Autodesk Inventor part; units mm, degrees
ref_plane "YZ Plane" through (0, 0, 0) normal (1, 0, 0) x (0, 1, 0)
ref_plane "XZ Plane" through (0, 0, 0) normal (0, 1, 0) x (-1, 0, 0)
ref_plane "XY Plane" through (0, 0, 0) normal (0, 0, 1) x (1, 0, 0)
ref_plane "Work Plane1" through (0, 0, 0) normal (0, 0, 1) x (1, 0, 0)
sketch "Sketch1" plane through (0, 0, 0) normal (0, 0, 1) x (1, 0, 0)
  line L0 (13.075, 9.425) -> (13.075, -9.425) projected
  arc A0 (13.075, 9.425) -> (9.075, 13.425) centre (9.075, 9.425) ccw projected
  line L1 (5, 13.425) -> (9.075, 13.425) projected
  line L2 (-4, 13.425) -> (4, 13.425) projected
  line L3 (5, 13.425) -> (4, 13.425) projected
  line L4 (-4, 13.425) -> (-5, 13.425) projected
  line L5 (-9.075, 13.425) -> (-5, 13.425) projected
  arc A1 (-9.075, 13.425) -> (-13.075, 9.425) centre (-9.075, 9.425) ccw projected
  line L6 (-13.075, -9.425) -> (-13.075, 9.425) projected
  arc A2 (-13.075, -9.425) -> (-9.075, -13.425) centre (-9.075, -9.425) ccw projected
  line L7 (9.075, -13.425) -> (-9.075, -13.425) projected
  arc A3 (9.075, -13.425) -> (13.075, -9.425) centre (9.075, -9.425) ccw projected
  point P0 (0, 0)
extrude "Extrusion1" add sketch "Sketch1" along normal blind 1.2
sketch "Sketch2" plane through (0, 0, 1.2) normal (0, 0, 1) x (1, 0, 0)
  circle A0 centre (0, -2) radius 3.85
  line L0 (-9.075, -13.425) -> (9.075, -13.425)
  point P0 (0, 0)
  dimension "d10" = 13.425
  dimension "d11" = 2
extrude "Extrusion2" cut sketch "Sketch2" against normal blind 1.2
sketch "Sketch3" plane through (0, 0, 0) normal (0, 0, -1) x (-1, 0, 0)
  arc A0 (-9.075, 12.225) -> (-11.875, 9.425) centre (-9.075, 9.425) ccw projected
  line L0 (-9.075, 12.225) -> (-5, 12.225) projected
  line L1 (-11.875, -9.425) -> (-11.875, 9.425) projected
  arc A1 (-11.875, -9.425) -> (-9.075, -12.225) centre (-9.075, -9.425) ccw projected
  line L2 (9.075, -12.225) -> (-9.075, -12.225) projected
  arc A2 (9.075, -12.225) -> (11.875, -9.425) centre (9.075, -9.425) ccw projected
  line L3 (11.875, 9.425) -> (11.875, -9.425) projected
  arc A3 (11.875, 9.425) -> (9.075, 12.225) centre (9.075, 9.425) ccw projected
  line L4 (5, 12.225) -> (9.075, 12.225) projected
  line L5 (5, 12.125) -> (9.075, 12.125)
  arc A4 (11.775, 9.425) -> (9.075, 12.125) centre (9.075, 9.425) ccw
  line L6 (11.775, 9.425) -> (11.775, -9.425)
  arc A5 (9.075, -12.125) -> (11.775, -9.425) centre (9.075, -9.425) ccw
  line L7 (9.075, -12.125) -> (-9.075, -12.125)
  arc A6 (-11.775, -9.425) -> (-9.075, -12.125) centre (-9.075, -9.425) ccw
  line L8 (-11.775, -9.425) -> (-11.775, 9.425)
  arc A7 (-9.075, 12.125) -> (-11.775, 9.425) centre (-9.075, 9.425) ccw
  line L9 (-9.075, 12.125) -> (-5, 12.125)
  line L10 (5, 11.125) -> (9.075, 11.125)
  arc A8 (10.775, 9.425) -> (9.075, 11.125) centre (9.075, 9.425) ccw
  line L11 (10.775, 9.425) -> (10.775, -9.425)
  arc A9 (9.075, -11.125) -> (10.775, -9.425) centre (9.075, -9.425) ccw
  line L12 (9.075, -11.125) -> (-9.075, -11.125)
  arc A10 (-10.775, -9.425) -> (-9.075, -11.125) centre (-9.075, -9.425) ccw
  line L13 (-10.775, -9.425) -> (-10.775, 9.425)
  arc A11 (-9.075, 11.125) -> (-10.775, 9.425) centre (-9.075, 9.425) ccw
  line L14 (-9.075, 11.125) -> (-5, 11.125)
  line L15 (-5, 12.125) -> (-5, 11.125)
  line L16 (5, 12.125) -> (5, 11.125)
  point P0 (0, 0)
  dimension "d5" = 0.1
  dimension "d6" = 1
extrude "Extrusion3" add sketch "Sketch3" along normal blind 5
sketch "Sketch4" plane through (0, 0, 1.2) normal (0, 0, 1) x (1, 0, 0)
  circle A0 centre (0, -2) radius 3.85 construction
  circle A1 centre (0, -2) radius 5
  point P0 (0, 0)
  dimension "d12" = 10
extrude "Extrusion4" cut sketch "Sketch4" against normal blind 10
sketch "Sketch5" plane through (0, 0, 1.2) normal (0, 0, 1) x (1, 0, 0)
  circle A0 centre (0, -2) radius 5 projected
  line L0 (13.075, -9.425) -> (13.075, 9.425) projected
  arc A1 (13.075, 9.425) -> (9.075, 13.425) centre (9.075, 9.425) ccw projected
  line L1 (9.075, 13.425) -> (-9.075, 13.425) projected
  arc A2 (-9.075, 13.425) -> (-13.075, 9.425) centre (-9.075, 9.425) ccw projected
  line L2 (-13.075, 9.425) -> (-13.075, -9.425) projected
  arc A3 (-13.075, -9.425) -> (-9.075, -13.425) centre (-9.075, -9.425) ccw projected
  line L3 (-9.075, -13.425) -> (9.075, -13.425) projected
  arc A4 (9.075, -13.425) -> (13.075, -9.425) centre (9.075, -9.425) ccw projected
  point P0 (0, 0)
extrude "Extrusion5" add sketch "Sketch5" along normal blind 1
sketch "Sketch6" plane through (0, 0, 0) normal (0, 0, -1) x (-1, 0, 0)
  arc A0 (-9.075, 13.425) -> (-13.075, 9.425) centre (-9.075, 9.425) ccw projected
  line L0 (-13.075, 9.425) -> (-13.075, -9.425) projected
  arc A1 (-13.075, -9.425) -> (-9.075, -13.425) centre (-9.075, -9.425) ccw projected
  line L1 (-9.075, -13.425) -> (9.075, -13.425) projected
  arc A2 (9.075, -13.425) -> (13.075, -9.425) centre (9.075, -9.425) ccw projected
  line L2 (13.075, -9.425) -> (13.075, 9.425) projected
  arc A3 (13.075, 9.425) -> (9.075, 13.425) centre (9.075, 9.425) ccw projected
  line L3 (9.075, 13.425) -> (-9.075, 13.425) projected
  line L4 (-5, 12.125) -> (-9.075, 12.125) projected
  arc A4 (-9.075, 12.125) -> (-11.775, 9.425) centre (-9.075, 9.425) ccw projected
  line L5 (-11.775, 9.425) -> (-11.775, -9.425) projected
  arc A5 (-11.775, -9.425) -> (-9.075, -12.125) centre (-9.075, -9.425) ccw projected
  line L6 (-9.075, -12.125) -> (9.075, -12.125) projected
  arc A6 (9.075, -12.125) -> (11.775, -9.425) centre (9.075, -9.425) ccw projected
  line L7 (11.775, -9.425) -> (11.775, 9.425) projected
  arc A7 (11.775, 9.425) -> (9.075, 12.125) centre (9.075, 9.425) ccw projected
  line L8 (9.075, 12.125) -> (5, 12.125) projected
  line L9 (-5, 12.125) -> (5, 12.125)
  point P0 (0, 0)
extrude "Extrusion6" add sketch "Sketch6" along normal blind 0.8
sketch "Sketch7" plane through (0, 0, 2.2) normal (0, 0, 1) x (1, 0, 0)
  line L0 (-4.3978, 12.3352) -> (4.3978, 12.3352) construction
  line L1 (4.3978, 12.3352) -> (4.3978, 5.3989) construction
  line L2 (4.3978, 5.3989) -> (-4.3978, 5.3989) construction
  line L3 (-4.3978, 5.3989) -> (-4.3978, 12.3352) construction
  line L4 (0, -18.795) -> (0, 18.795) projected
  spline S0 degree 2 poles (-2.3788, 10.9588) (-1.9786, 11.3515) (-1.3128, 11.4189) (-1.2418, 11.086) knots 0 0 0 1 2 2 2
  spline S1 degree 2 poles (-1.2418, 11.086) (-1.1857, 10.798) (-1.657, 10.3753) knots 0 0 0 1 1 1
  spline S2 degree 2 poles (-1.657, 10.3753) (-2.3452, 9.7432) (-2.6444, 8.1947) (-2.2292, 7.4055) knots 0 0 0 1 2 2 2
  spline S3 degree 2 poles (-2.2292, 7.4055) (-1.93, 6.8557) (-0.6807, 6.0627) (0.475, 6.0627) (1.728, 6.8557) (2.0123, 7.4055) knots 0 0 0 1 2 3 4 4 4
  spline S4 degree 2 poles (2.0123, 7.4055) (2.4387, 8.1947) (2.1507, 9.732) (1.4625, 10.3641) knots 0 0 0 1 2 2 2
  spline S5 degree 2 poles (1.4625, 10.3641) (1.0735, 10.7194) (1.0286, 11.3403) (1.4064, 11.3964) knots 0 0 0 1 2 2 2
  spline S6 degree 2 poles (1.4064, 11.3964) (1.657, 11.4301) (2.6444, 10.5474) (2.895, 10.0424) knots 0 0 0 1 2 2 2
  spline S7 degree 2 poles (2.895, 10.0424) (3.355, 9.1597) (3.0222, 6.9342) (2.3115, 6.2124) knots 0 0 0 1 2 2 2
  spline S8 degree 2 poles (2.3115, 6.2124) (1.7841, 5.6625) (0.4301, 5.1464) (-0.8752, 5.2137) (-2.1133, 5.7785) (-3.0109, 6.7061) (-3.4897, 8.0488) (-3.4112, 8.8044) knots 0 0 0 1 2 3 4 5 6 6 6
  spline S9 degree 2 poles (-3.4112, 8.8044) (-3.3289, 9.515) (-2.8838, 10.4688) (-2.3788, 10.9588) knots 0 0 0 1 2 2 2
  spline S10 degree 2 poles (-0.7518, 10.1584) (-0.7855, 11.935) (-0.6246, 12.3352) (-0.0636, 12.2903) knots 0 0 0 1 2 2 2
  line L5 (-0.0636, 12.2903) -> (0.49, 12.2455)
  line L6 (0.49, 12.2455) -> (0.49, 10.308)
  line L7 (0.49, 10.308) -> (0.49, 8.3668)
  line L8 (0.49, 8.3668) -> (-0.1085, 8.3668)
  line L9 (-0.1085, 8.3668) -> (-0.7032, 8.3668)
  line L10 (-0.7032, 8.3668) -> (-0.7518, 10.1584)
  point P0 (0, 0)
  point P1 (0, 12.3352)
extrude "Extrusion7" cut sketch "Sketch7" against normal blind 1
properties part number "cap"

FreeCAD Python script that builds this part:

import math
import FreeCAD as App
import Part
import Sketcher
from FreeCAD import Vector

doc = App.newDocument("Part")
body = doc.addObject("PartDesign::Body", "Body")

sketch1 = doc.addObject("Sketcher::SketchObject", "Sketch")
body.addObject(sketch1)
sketch1.AttachmentSupport = (doc.XY_Plane, [""])
sketch1.MapMode = "FlatFace"
sketch1.addGeometry(Part.LineSegment(Vector(13.1, -9.4, 0), Vector(13.1, 9.4, 0)), False)
sketch1.addGeometry(Part.ArcOfCircle(Part.Circle(Vector(9.1, 9.4, 0), Vector(0, 0, 1), 4), math.radians(0), math.radians(90)), False)
sketch1.addGeometry(Part.LineSegment(Vector(9.1, 13.4, 0), Vector(-9.1, 13.4, 0)), False)
sketch1.addGeometry(Part.ArcOfCircle(Part.Circle(Vector(-9.1, 9.4, 0), Vector(0, 0, 1), 4), math.radians(90), math.radians(180)), False)
sketch1.addGeometry(Part.LineSegment(Vector(-13.1, 9.4, 0), Vector(-13.1, -9.4, 0)), False)
sketch1.addGeometry(Part.ArcOfCircle(Part.Circle(Vector(-9.1, -9.4, 0), Vector(0, 0, 1), 4), math.radians(180), math.radians(270)), False)
sketch1.addGeometry(Part.LineSegment(Vector(-9.1, -13.4, 0), Vector(9.1, -13.4, 0)), False)
sketch1.addGeometry(Part.ArcOfCircle(Part.Circle(Vector(9.1, -9.4, 0), Vector(0, 0, 1), 4), math.radians(-90), math.radians(0)), False)
sketch1.addConstraint(Sketcher.Constraint("Tangent", 0, 2, 1, 1))
sketch1.addConstraint(Sketcher.Constraint("Tangent", 1, 2, 2, 1))
sketch1.addConstraint(Sketcher.Constraint("Tangent", 2, 2, 3, 1))
sketch1.addConstraint(Sketcher.Constraint("Tangent", 3, 2, 4, 1))
sketch1.addConstraint(Sketcher.Constraint("Tangent", 4, 2, 5, 1))
sketch1.addConstraint(Sketcher.Constraint("Tangent", 5, 2, 6, 1))
sketch1.addConstraint(Sketcher.Constraint("Tangent", 6, 2, 7, 1))
sketch1.addConstraint(Sketcher.Constraint("Tangent", 7, 2, 0, 1))
sketch1.addConstraint(Sketcher.Constraint("Vertical", 0))
sketch1.addConstraint(Sketcher.Constraint("Horizontal", 2))
sketch1.addConstraint(Sketcher.Constraint("Vertical", 4))
sketch1.addConstraint(Sketcher.Constraint("Horizontal", 6))
sketch1.addConstraint(Sketcher.Constraint("Equal", 1, 3))
sketch1.addConstraint(Sketcher.Constraint("Equal", 3, 5))
sketch1.addConstraint(Sketcher.Constraint("Equal", 5, 7))
sketch1.addConstraint(Sketcher.Constraint("Symmetric", 1, 3, 5, 3, -1, 1))
sketch1.addConstraint(Sketcher.Constraint("Radius", 1, 4.0))
sketch1.addConstraint(Sketcher.Constraint("DistanceX", 2, 2, 2, 1, 18.15))
sketch1.addConstraint(Sketcher.Constraint("DistanceY", 0, 1, 0, 2, 18.85))
pad1 = doc.addObject("PartDesign::Pad", "Pad")
body.addObject(pad1)
pad1.Profile = sketch1
pad1.Length = 1.2

sketch2 = doc.addObject("Sketcher::SketchObject", "Sketch001")
body.addObject(sketch2)
sketch2.AttachmentSupport = (doc.XY_Plane, [""])
sketch2.MapMode = "FlatFace"
sketch2.AttachmentOffset = App.Placement(Vector(0, 0, 1.2), App.Rotation())
sketch2.addGeometry(Part.Circle(Vector(0, -2, 0), Vector(0, 0, 1), 3.9), False)
sketch2.addConstraint(Sketcher.Constraint("PointOnObject", 0, 3, -2))
sketch2.addConstraint(Sketcher.Constraint("DistanceY", 0, 3, -1, 1, 2.0))
sketch2.addConstraint(Sketcher.Constraint("Diameter", 0, 7.7))
pocket1 = doc.addObject("PartDesign::Pocket", "Pocket")
body.addObject(pocket1)
pocket1.Profile = sketch2
pocket1.Length = 1.2

sketch3 = doc.addObject("Sketcher::SketchObject", "Sketch002")
body.addObject(sketch3)
sketch3.AttachmentSupport = (doc.XY_Plane, [""])
sketch3.MapMode = "FlatFace"
sketch3.addGeometry(Part.LineSegment(Vector(-9.1, 12.1, 0), Vector(-5, 12.1, 0)), False)
sketch3.addGeometry(Part.LineSegment(Vector(-5, 12.1, 0), Vector(-5, 11.1, 0)), False)
sketch3.addGeometry(Part.LineSegment(Vector(-5, 11.1, 0), Vector(-9.1, 11.1, 0)), False)
sketch3.addGeometry(Part.ArcOfCircle(Part.Circle(Vector(-9.1, 9.4, 0), Vector(0, 0, 1), 1.7), math.radians(90), math.radians(180)), False)
sketch3.addGeometry(Part.LineSegment(Vector(-10.8, 9.4, 0), Vector(-10.8, -9.4, 0)), False)
sketch3.addGeometry(Part.ArcOfCircle(Part.Circle(Vector(-9.1, -9.4, 0), Vector(0, 0, 1), 1.7), math.radians(180), math.radians(270)), False)
sketch3.addGeometry(Part.LineSegment(Vector(-9.1, -11.1, 0), Vector(9.1, -11.1, 0)), False)
sketch3.addGeometry(Part.ArcOfCircle(Part.Circle(Vector(9.1, -9.4, 0), Vector(0, 0, 1), 1.7), math.radians(-90), math.radians(0)), False)
sketch3.addGeometry(Part.LineSegment(Vector(10.8, -9.4, 0), Vector(10.8, 9.4, 0)), False)
sketch3.addGeometry(Part.ArcOfCircle(Part.Circle(Vector(9.1, 9.4, 0), Vector(0, 0, 1), 1.7), math.radians(0), math.radians(90)), False)
sketch3.addGeometry(Part.LineSegment(Vector(9.1, 11.1, 0), Vector(5, 11.1, 0)), False)
sketch3.addGeometry(Part.LineSegment(Vector(5, 11.1, 0), Vector(5, 12.1, 0)), False)
sketch3.addGeometry(Part.LineSegment(Vector(5, 12.1, 0), Vector(9.1, 12.1, 0)), False)
sketch3.addGeometry(Part.ArcOfCircle(Part.Circle(Vector(9.1, 9.4, 0), Vector(0, 0, 1), 2.7), math.radians(0), math.radians(90)), False)
sketch3.addGeometry(Part.LineSegment(Vector(11.8, 9.4, 0), Vector(11.8, -9.4, 0)), False)
sketch3.addGeometry(Part.ArcOfCircle(Part.Circle(Vector(9.1, -9.4, 0), Vector(0, 0, 1), 2.7), math.radians(-90), math.radians(0)), False)
sketch3.addGeometry(Part.LineSegment(Vector(9.1, -12.1, 0), Vector(-9.1, -12.1, 0)), False)
sketch3.addGeometry(Part.ArcOfCircle(Part.Circle(Vector(-9.1, -9.4, 0), Vector(0, 0, 1), 2.7), math.radians(180), math.radians(270)), False)
sketch3.addGeometry(Part.LineSegment(Vector(-11.8, -9.4, 0), Vector(-11.8, 9.4, 0)), False)
sketch3.addGeometry(Part.ArcOfCircle(Part.Circle(Vector(-9.1, 9.4, 0), Vector(0, 0, 1), 2.7), math.radians(90), math.radians(180)), False)
sketch3.addConstraint(Sketcher.Constraint("Coincident", 0, 2, 1, 1))
sketch3.addConstraint(Sketcher.Constraint("Coincident", 1, 2, 2, 1))
sketch3.addConstraint(Sketcher.Constraint("Tangent", 2, 2, 3, 1))
sketch3.addConstraint(Sketcher.Constraint("Tangent", 3, 2, 4, 1))
sketch3.addConstraint(Sketcher.Constraint("Tangent", 4, 2, 5, 1))
sketch3.addConstraint(Sketcher.Constraint("Tangent", 5, 2, 6, 1))
sketch3.addConstraint(Sketcher.Constraint("Tangent", 6, 2, 7, 1))
sketch3.addConstraint(Sketcher.Constraint("Tangent", 7, 2, 8, 1))
sketch3.addConstraint(Sketcher.Constraint("Tangent", 8, 2, 9, 1))
sketch3.addConstraint(Sketcher.Constraint("Tangent", 9, 2, 10, 1))
sketch3.addConstraint(Sketcher.Constraint("Coincident", 10, 2, 11, 1))
sketch3.addConstraint(Sketcher.Constraint("Coincident", 11, 2, 12, 1))
sketch3.addConstraint(Sketcher.Constraint("Tangent", 12, 2, 13, 2))
sketch3.addConstraint(Sketcher.Constraint("Tangent", 13, 1, 14, 1))
sketch3.addConstraint(Sketcher.Constraint("Tangent", 14, 2, 15, 2))
sketch3.addConstraint(Sketcher.Constraint("Tangent", 15, 1, 16, 1))
sketch3.addConstraint(Sketcher.Constraint("Tangent", 16, 2, 17, 2))
sketch3.addConstraint(Sketcher.Constraint("Tangent", 17, 1, 18, 1))
sketch3.addConstraint(Sketcher.Constraint("Tangent", 18, 2, 19, 2))
sketch3.addConstraint(Sketcher.Constraint("Tangent", 19, 1, 0, 1))
sketch3.addConstraint(Sketcher.Constraint("Horizontal", 0))
sketch3.addConstraint(Sketcher.Constraint("Vertical", 1))
sketch3.addConstraint(Sketcher.Constraint("Horizontal", 2))
sketch3.addConstraint(Sketcher.Constraint("Vertical", 4))
sketch3.addConstraint(Sketcher.Constraint("Horizontal", 6))
sketch3.addConstraint(Sketcher.Constraint("Vertical", 8))
sketch3.addConstraint(Sketcher.Constraint("Horizontal", 10))
sketch3.addConstraint(Sketcher.Constraint("Vertical", 11))
sketch3.addConstraint(Sketcher.Constraint("Horizontal", 12))
sketch3.addConstraint(Sketcher.Constraint("Vertical", 14))
sketch3.addConstraint(Sketcher.Constraint("Horizontal", 16))
sketch3.addConstraint(Sketcher.Constraint("Vertical", 18))
sketch3.addConstraint(Sketcher.Constraint("Coincident", 13, 3, 9, 3))
sketch3.addConstraint(Sketcher.Constraint("Coincident", 15, 3, 7, 3))
sketch3.addConstraint(Sketcher.Constraint("Coincident", 17, 3, 5, 3))
sketch3.addConstraint(Sketcher.Constraint("Coincident", 19, 3, 3, 3))
sketch3.addConstraint(Sketcher.Constraint("Equal", 3, 5))
sketch3.addConstraint(Sketcher.Constraint("Equal", 5, 7))
sketch3.addConstraint(Sketcher.Constraint("Equal", 7, 9))
sketch3.addConstraint(Sketcher.Constraint("Symmetric", 3, 3, 7, 3, -1, 1))
sketch3.addConstraint(Sketcher.Constraint("Symmetric", 1, 2, 10, 2, -2))
sketch3.addConstraint(Sketcher.Constraint("DistanceY", 1, 2, 1, 1, 1.0))
sketch3.addConstraint(Sketcher.Constraint("Radius", 3, 1.7))
sketch3.addConstraint(Sketcher.Constraint("DistanceX", 0, 2, -1, 1, 5.0))
sketch3.addConstraint(Sketcher.Constraint("DistanceX", 6, 1, 6, 2, 18.15))
sketch3.addConstraint(Sketcher.Constraint("DistanceY", 4, 2, 4, 1, 18.85))
pad2 = doc.addObject("PartDesign::Pad", "Pad001")
body.addObject(pad2)
pad2.Profile = sketch3
pad2.Length = 5
pad2.Reversed = True

sketch4 = doc.addObject("Sketcher::SketchObject", "Sketch003")
body.addObject(sketch4)
sketch4.AttachmentSupport = (doc.XY_Plane, [""])
sketch4.MapMode = "FlatFace"
sketch4.AttachmentOffset = App.Placement(Vector(0, 0, 1.2), App.Rotation())
sketch4.addGeometry(Part.Circle(Vector(0, -2, 0), Vector(0, 0, 1), 5), False)
sketch4.addConstraint(Sketcher.Constraint("PointOnObject", 0, 3, -2))
sketch4.addConstraint(Sketcher.Constraint("Diameter", 0, 10.0))
sketch4.addConstraint(Sketcher.Constraint("DistanceY", 0, 3, -1, 1, 2.0))
pocket2 = doc.addObject("PartDesign::Pocket", "Pocket001")
body.addObject(pocket2)
pocket2.Profile = sketch4
pocket2.Length = 10

sketch5 = doc.addObject("Sketcher::SketchObject", "Sketch004")
body.addObject(sketch5)
sketch5.AttachmentSupport = (doc.XY_Plane, [""])
sketch5.MapMode = "FlatFace"
sketch5.AttachmentOffset = App.Placement(Vector(0, 0, 1.2), App.Rotation())
sketch5.addGeometry(Part.ArcOfCircle(Part.Circle(Vector(9.1, -9.4, 0), Vector(0, 0, 1), 4), math.radians(-90), math.radians(0)), False)
sketch5.addGeometry(Part.LineSegment(Vector(13.1, -9.4, 0), Vector(13.1, 9.4, 0)), False)
sketch5.addGeometry(Part.ArcOfCircle(Part.Circle(Vector(9.1, 9.4, 0), Vector(0, 0, 1), 4), math.radians(0), math.radians(90)), False)
sketch5.addGeometry(Part.LineSegment(Vector(9.1, 13.4, 0), Vector(-9.1, 13.4, 0)), False)
sketch5.addGeometry(Part.ArcOfCircle(Part.Circle(Vector(-9.1, 9.4, 0), Vector(0, 0, 1), 4), math.radians(90), math.radians(180)), False)
sketch5.addGeometry(Part.LineSegment(Vector(-13.1, 9.4, 0), Vector(-13.1, -9.4, 0)), False)
sketch5.addGeometry(Part.ArcOfCircle(Part.Circle(Vector(-9.1, -9.4, 0), Vector(0, 0, 1), 4), math.radians(180), math.radians(270)), False)
sketch5.addGeometry(Part.LineSegment(Vector(-9.1, -13.4, 0), Vector(9.1, -13.4, 0)), False)
sketch5.addGeometry(Part.Circle(Vector(0, -2, 0), Vector(0, 0, 1), 5), False)
sketch5.addConstraint(Sketcher.Constraint("Tangent", 0, 2, 1, 1))
sketch5.addConstraint(Sketcher.Constraint("Tangent", 1, 2, 2, 1))
sketch5.addConstraint(Sketcher.Constraint("Tangent", 2, 2, 3, 1))
sketch5.addConstraint(Sketcher.Constraint("Tangent", 3, 2, 4, 1))
sketch5.addConstraint(Sketcher.Constraint("Tangent", 4, 2, 5, 1))
sketch5.addConstraint(Sketcher.Constraint("Tangent", 5, 2, 6, 1))
sketch5.addConstraint(Sketcher.Constraint("Tangent", 6, 2, 7, 1))
sketch5.addConstraint(Sketcher.Constraint("Tangent", 7, 2, 0, 1))
sketch5.addConstraint(Sketcher.Constraint("Vertical", 1))
sketch5.addConstraint(Sketcher.Constraint("Horizontal", 3))
sketch5.addConstraint(Sketcher.Constraint("Vertical", 5))
sketch5.addConstraint(Sketcher.Constraint("Horizontal", 7))
sketch5.addConstraint(Sketcher.Constraint("Equal", 0, 2))
sketch5.addConstraint(Sketcher.Constraint("Equal", 2, 4))
sketch5.addConstraint(Sketcher.Constraint("Equal", 4, 6))
sketch5.addConstraint(Sketcher.Constraint("Symmetric", 0, 3, 4, 3, -1, 1))
sketch5.addConstraint(Sketcher.Constraint("PointOnObject", 8, 3, -2))
sketch5.addConstraint(Sketcher.Constraint("Diameter", 8, 10.0))
sketch5.addConstraint(Sketcher.Constraint("Radius", 0, 4.0))
sketch5.addConstraint(Sketcher.Constraint("DistanceY", 8, 3, -1, 1, 2.0))
sketch5.addConstraint(Sketcher.Constraint("DistanceX", 3, 2, 3, 1, 18.15))
sketch5.addConstraint(Sketcher.Constraint("DistanceY", 1, 1, 1, 2, 18.85))
pad3 = doc.addObject("PartDesign::Pad", "Pad002")
body.addObject(pad3)
pad3.Profile = sketch5
pad3.Length = 1

sketch6 = doc.addObject("Sketcher::SketchObject", "Sketch005")
body.addObject(sketch6)
sketch6.AttachmentSupport = (doc.XY_Plane, [""])
sketch6.MapMode = "FlatFace"
sketch6.addGeometry(Part.LineSegment(Vector(-9.1, 13.4, 0), Vector(9.1, 13.4, 0)), False)
sketch6.addGeometry(Part.ArcOfCircle(Part.Circle(Vector(9.1, 9.4, 0), Vector(0, 0, 1), 4), math.radians(0), math.radians(90)), False)
sketch6.addGeometry(Part.LineSegment(Vector(13.1, 9.4, 0), Vector(13.1, -9.4, 0)), False)
sketch6.addGeometry(Part.ArcOfCircle(Part.Circle(Vector(9.1, -9.4, 0), Vector(0, 0, 1), 4), math.radians(-90), math.radians(0)), False)
sketch6.addGeometry(Part.LineSegment(Vector(9.1, -13.4, 0), Vector(-9.1, -13.4, 0)), False)
sketch6.addGeometry(Part.ArcOfCircle(Part.Circle(Vector(-9.1, -9.4, 0), Vector(0, 0, 1), 4), math.radians(180), math.radians(270)), False)
sketch6.addGeometry(Part.LineSegment(Vector(-13.1, -9.4, 0), Vector(-13.1, 9.4, 0)), False)
sketch6.addGeometry(Part.ArcOfCircle(Part.Circle(Vector(-9.1, 9.4, 0), Vector(0, 0, 1), 4), math.radians(90), math.radians(180)), False)
sketch6.addGeometry(Part.LineSegment(Vector(9.1, 12.1, 0), Vector(-9.1, 12.1, 0)), False)
sketch6.addGeometry(Part.ArcOfCircle(Part.Circle(Vector(-9.1, 9.4, 0), Vector(0, 0, 1), 2.7), math.radians(90), math.radians(180)), False)
sketch6.addGeometry(Part.LineSegment(Vector(-11.8, 9.4, 0), Vector(-11.8, -9.4, 0)), False)
sketch6.addGeometry(Part.ArcOfCircle(Part.Circle(Vector(-9.1, -9.4, 0), Vector(0, 0, 1), 2.7), math.radians(180), math.radians(270)), False)
sketch6.addGeometry(Part.LineSegment(Vector(-9.1, -12.1, 0), Vector(9.1, -12.1, 0)), False)
sketch6.addGeometry(Part.ArcOfCircle(Part.Circle(Vector(9.1, -9.4, 0), Vector(0, 0, 1), 2.7), math.radians(-90), math.radians(0)), False)
sketch6.addGeometry(Part.LineSegment(Vector(11.8, -9.4, 0), Vector(11.8, 9.4, 0)), False)
sketch6.addGeometry(Part.ArcOfCircle(Part.Circle(Vector(9.1, 9.4, 0), Vector(0, 0, 1), 2.7), math.radians(0), math.radians(90)), False)
sketch6.addConstraint(Sketcher.Constraint("Tangent", 0, 2, 1, 2))
sketch6.addConstraint(Sketcher.Constraint("Tangent", 1, 1, 2, 1))
sketch6.addConstraint(Sketcher.Constraint("Tangent", 2, 2, 3, 2))
sketch6.addConstraint(Sketcher.Constraint("Tangent", 3, 1, 4, 1))
sketch6.addConstraint(Sketcher.Constraint("Tangent", 4, 2, 5, 2))
sketch6.addConstraint(Sketcher.Constraint("Tangent", 5, 1, 6, 1))
sketch6.addConstraint(Sketcher.Constraint("Tangent", 6, 2, 7, 2))
sketch6.addConstraint(Sketcher.Constraint("Tangent", 7, 1, 0, 1))
sketch6.addConstraint(Sketcher.Constraint("Tangent", 8, 2, 9, 1))
sketch6.addConstraint(Sketcher.Constraint("Tangent", 9, 2, 10, 1))
sketch6.addConstraint(Sketcher.Constraint("Tangent", 10, 2, 11, 1))
sketch6.addConstraint(Sketcher.Constraint("Tangent", 11, 2, 12, 1))
sketch6.addConstraint(Sketcher.Constraint("Tangent", 12, 2, 13, 1))
sketch6.addConstraint(Sketcher.Constraint("Tangent", 13, 2, 14, 1))
sketch6.addConstraint(Sketcher.Constraint("Tangent", 14, 2, 15, 1))
sketch6.addConstraint(Sketcher.Constraint("Tangent", 15, 2, 8, 1))
sketch6.addConstraint(Sketcher.Constraint("Horizontal", 0))
sketch6.addConstraint(Sketcher.Constraint("Vertical", 2))
sketch6.addConstraint(Sketcher.Constraint("Horizontal", 4))
sketch6.addConstraint(Sketcher.Constraint("Vertical", 6))
sketch6.addConstraint(Sketcher.Constraint("Horizontal", 8))
sketch6.addConstraint(Sketcher.Constraint("Vertical", 10))
sketch6.addConstraint(Sketcher.Constraint("Horizontal", 12))
sketch6.addConstraint(Sketcher.Constraint("Vertical", 14))
sketch6.addConstraint(Sketcher.Constraint("Coincident", 9, 3, 7, 3))
sketch6.addConstraint(Sketcher.Constraint("Coincident", 11, 3, 5, 3))
sketch6.addConstraint(Sketcher.Constraint("Coincident", 13, 3, 3, 3))
sketch6.addConstraint(Sketcher.Constraint("Equal", 1, 3))
sketch6.addConstraint(Sketcher.Constraint("Equal", 3, 5))
sketch6.addConstraint(Sketcher.Constraint("Equal", 5, 7))
sketch6.addConstraint(Sketcher.Constraint("Equal", 13, 15))
sketch6.addConstraint(Sketcher.Constraint("Symmetric", 1, 3, 5, 3, -1, 1))
sketch6.addConstraint(Sketcher.Constraint("Radius", 1, 4.0))
sketch6.addConstraint(Sketcher.Constraint("Radius", 9, 2.7))
sketch6.addConstraint(Sketcher.Constraint("DistanceX", 0, 1, 0, 2, 18.15))
sketch6.addConstraint(Sketcher.Constraint("DistanceY", 2, 2, 2, 1, 18.85))
pad4 = doc.addObject("PartDesign::Pad", "Pad003")
body.addObject(pad4)
pad4.Profile = sketch6
pad4.Length = 0.8
pad4.Reversed = True

sketch7 = doc.addObject("Sketcher::SketchObject", "Sketch006")
body.addObject(sketch7)
sketch7.AttachmentSupport = (doc.XY_Plane, [""])
sketch7.MapMode = "FlatFace"
sketch7.AttachmentOffset = App.Placement(Vector(0, 0, 2.2), App.Rotation())
sketch7.addGeometry(Part.BSplineCurve([Vector(0, 5.177038, 0), Vector(-0.111627, 5.174331, 0), Vector(-0.8752, 5.2137, 0), Vector(-2.1133, 5.7785, 0), Vector(-3.0109, 6.7061, 0), Vector(-3.4897, 8.0488, 0), Vector(-3.4112, 8.8044, 0)], [3, 1, 1, 1, 1, 3], [1.830041653, 2, 3, 4, 5, 6], False, 2, [1, 1, 1, 1, 1, 1, 1], False), False)
sketch7.addGeometry(Part.BSplineCurve([Vector(2.3115, 6.2124, 0), Vector(1.7841, 5.6625, 0), Vector(0.545162, 5.190258, 0), Vector(0, 5.177038, 0)], [3, 1, 3], [0, 1, 1.830041653], False, 2, [1, 1, 1, 1], False), False)
sketch7.addGeometry(Part.BSplineCurve([Vector(2.895, 10.0424, 0), Vector(3.355, 9.1597, 0), Vector(3.0222, 6.9342, 0), Vector(2.3115, 6.2124, 0)], [3, 1, 3], [0, 1, 2], False, 2, [1, 1, 1, 1], False), False)
sketch7.addGeometry(Part.BSplineCurve([Vector(1.4064, 11.3964, 0), Vector(1.657, 11.4301, 0), Vector(2.6444, 10.5474, 0), Vector(2.895, 10.0424, 0)], [3, 1, 3], [0, 1, 2], False, 2, [1, 1, 1, 1], False), False)
sketch7.addGeometry(Part.BSplineCurve([Vector(1.4625, 10.3641, 0), Vector(1.0735, 10.7194, 0), Vector(1.0286, 11.3403, 0), Vector(1.4064, 11.3964, 0)], [3, 1, 3], [0, 1, 2], False, 2, [1, 1, 1, 1], False), False)
sketch7.addGeometry(Part.BSplineCurve([Vector(2.0123, 7.4055, 0), Vector(2.4387, 8.1947, 0), Vector(2.1507, 9.732, 0), Vector(1.4625, 10.3641, 0)], [3, 1, 3], [0, 1, 2], False, 2, [1, 1, 1, 1], False), False)
sketch7.addGeometry(Part.BSplineCurve([Vector(0, 6.065817, 0), Vector(0.530547, 6.097855, 0), Vector(1.728, 6.8557, 0), Vector(2.0123, 7.4055, 0)], [3, 1, 3], [2.088662766, 3, 4], False, 2, [1, 1, 1, 1], False), False)
sketch7.addGeometry(Part.BSplineCurve([Vector(-2.2292, 7.4055, 0), Vector(-1.93, 6.8557, 0), Vector(-0.6807, 6.0627, 0), Vector(-0.051616, 6.0627, 0), Vector(0, 6.065817, 0)], [3, 1, 1, 3], [0, 1, 2, 2.088662766], False, 2, [1, 1, 1, 1, 1], False), False)
sketch7.addGeometry(Part.BSplineCurve([Vector(-1.657, 10.3753, 0), Vector(-2.3452, 9.7432, 0), Vector(-2.6444, 8.1947, 0), Vector(-2.2292, 7.4055, 0)], [3, 1, 3], [0, 1, 2], False, 2, [1, 1, 1, 1], False), False)
sketch7.addGeometry(Part.BSplineCurve([Vector(-1.2418, 11.086, 0), Vector(-1.1857, 10.798, 0), Vector(-1.657, 10.3753, 0)], [3, 3], [0, 1], False, 2, [1, 1, 1], False), False)
sketch7.addGeometry(Part.BSplineCurve([Vector(-2.3788, 10.9588, 0), Vector(-1.9786, 11.3515, 0), Vector(-1.3128, 11.4189, 0), Vector(-1.2418, 11.086, 0)], [3, 1, 3], [0, 1, 2], False, 2, [1, 1, 1, 1], False), False)
sketch7.addGeometry(Part.BSplineCurve([Vector(-3.4112, 8.8044, 0), Vector(-3.3289, 9.515, 0), Vector(-2.8838, 10.4688, 0), Vector(-2.3788, 10.9588, 0)], [3, 1, 3], [0, 1, 2], False, 2, [1, 1, 1, 1], False), False)
sketch7.addGeometry(Part.LineSegment(Vector(0.49, 8.3668, 0), Vector(0.49, 12.2455, 0)), False)
sketch7.addGeometry(Part.LineSegment(Vector(0.49, 12.2455, 0), Vector(-0.0636, 12.2903, 0)), False)
sketch7.addGeometry(Part.BSplineCurve([Vector(-0.7518, 10.1584, 0), Vector(-0.7855, 11.935, 0), Vector(-0.6246, 12.3352, 0), Vector(-0.0636, 12.2903, 0)], [3, 1, 3], [0, 1, 2], False, 2, [1, 1, 1, 1], False), False)
sketch7.addGeometry(Part.LineSegment(Vector(-0.7518, 10.1584, 0), Vector(-0.7032, 8.3668, 0)), False)
sketch7.addGeometry(Part.LineSegment(Vector(-0.7032, 8.3668, 0), Vector(0.49, 8.3668, 0)), False)
sketch7.addConstraint(Sketcher.Constraint("Block", 0))
sketch7.addConstraint(Sketcher.Constraint("Block", 1))
sketch7.addConstraint(Sketcher.Constraint("Block", 2))
sketch7.addConstraint(Sketcher.Constraint("Block", 3))
sketch7.addConstraint(Sketcher.Constraint("Block", 4))
sketch7.addConstraint(Sketcher.Constraint("Block", 5))
sketch7.addConstraint(Sketcher.Constraint("Block", 6))
sketch7.addConstraint(Sketcher.Constraint("Block", 7))
sketch7.addConstraint(Sketcher.Constraint("Block", 8))
sketch7.addConstraint(Sketcher.Constraint("Block", 9))
sketch7.addConstraint(Sketcher.Constraint("Block", 10))
sketch7.addConstraint(Sketcher.Constraint("Block", 11))
sketch7.addConstraint(Sketcher.Constraint("Block", 14))
sketch7.addConstraint(Sketcher.Constraint("Coincident", 12, 2, 13, 1))
sketch7.addConstraint(Sketcher.Constraint("Coincident", 13, 2, 14, 2))
sketch7.addConstraint(Sketcher.Constraint("Coincident", 14, 1, 15, 1))
sketch7.addConstraint(Sketcher.Constraint("Coincident", 15, 2, 16, 1))
sketch7.addConstraint(Sketcher.Constraint("Coincident", 16, 2, 12, 1))
sketch7.addConstraint(Sketcher.Constraint("Vertical", 12))
sketch7.addConstraint(Sketcher.Constraint("Horizontal", 16))
sketch7.addConstraint(Sketcher.Constraint("DistanceX", -1, 1, 12, 2, 0.49))
sketch7.addConstraint(Sketcher.Constraint("DistanceX", 16, 1, 16, 2, 1.1932))
sketch7.addConstraint(Sketcher.Constraint("DistanceY", 12, 1, 12, 2, 3.8787))
sketch7.addConstraint(Sketcher.Constraint("Distance", 13, 0.5554))
pocket3 = doc.addObject("PartDesign::Pocket", "Pocket002")
body.addObject(pocket3)
pocket3.Profile = sketch7
pocket3.Length = 1

doc.recompute()
